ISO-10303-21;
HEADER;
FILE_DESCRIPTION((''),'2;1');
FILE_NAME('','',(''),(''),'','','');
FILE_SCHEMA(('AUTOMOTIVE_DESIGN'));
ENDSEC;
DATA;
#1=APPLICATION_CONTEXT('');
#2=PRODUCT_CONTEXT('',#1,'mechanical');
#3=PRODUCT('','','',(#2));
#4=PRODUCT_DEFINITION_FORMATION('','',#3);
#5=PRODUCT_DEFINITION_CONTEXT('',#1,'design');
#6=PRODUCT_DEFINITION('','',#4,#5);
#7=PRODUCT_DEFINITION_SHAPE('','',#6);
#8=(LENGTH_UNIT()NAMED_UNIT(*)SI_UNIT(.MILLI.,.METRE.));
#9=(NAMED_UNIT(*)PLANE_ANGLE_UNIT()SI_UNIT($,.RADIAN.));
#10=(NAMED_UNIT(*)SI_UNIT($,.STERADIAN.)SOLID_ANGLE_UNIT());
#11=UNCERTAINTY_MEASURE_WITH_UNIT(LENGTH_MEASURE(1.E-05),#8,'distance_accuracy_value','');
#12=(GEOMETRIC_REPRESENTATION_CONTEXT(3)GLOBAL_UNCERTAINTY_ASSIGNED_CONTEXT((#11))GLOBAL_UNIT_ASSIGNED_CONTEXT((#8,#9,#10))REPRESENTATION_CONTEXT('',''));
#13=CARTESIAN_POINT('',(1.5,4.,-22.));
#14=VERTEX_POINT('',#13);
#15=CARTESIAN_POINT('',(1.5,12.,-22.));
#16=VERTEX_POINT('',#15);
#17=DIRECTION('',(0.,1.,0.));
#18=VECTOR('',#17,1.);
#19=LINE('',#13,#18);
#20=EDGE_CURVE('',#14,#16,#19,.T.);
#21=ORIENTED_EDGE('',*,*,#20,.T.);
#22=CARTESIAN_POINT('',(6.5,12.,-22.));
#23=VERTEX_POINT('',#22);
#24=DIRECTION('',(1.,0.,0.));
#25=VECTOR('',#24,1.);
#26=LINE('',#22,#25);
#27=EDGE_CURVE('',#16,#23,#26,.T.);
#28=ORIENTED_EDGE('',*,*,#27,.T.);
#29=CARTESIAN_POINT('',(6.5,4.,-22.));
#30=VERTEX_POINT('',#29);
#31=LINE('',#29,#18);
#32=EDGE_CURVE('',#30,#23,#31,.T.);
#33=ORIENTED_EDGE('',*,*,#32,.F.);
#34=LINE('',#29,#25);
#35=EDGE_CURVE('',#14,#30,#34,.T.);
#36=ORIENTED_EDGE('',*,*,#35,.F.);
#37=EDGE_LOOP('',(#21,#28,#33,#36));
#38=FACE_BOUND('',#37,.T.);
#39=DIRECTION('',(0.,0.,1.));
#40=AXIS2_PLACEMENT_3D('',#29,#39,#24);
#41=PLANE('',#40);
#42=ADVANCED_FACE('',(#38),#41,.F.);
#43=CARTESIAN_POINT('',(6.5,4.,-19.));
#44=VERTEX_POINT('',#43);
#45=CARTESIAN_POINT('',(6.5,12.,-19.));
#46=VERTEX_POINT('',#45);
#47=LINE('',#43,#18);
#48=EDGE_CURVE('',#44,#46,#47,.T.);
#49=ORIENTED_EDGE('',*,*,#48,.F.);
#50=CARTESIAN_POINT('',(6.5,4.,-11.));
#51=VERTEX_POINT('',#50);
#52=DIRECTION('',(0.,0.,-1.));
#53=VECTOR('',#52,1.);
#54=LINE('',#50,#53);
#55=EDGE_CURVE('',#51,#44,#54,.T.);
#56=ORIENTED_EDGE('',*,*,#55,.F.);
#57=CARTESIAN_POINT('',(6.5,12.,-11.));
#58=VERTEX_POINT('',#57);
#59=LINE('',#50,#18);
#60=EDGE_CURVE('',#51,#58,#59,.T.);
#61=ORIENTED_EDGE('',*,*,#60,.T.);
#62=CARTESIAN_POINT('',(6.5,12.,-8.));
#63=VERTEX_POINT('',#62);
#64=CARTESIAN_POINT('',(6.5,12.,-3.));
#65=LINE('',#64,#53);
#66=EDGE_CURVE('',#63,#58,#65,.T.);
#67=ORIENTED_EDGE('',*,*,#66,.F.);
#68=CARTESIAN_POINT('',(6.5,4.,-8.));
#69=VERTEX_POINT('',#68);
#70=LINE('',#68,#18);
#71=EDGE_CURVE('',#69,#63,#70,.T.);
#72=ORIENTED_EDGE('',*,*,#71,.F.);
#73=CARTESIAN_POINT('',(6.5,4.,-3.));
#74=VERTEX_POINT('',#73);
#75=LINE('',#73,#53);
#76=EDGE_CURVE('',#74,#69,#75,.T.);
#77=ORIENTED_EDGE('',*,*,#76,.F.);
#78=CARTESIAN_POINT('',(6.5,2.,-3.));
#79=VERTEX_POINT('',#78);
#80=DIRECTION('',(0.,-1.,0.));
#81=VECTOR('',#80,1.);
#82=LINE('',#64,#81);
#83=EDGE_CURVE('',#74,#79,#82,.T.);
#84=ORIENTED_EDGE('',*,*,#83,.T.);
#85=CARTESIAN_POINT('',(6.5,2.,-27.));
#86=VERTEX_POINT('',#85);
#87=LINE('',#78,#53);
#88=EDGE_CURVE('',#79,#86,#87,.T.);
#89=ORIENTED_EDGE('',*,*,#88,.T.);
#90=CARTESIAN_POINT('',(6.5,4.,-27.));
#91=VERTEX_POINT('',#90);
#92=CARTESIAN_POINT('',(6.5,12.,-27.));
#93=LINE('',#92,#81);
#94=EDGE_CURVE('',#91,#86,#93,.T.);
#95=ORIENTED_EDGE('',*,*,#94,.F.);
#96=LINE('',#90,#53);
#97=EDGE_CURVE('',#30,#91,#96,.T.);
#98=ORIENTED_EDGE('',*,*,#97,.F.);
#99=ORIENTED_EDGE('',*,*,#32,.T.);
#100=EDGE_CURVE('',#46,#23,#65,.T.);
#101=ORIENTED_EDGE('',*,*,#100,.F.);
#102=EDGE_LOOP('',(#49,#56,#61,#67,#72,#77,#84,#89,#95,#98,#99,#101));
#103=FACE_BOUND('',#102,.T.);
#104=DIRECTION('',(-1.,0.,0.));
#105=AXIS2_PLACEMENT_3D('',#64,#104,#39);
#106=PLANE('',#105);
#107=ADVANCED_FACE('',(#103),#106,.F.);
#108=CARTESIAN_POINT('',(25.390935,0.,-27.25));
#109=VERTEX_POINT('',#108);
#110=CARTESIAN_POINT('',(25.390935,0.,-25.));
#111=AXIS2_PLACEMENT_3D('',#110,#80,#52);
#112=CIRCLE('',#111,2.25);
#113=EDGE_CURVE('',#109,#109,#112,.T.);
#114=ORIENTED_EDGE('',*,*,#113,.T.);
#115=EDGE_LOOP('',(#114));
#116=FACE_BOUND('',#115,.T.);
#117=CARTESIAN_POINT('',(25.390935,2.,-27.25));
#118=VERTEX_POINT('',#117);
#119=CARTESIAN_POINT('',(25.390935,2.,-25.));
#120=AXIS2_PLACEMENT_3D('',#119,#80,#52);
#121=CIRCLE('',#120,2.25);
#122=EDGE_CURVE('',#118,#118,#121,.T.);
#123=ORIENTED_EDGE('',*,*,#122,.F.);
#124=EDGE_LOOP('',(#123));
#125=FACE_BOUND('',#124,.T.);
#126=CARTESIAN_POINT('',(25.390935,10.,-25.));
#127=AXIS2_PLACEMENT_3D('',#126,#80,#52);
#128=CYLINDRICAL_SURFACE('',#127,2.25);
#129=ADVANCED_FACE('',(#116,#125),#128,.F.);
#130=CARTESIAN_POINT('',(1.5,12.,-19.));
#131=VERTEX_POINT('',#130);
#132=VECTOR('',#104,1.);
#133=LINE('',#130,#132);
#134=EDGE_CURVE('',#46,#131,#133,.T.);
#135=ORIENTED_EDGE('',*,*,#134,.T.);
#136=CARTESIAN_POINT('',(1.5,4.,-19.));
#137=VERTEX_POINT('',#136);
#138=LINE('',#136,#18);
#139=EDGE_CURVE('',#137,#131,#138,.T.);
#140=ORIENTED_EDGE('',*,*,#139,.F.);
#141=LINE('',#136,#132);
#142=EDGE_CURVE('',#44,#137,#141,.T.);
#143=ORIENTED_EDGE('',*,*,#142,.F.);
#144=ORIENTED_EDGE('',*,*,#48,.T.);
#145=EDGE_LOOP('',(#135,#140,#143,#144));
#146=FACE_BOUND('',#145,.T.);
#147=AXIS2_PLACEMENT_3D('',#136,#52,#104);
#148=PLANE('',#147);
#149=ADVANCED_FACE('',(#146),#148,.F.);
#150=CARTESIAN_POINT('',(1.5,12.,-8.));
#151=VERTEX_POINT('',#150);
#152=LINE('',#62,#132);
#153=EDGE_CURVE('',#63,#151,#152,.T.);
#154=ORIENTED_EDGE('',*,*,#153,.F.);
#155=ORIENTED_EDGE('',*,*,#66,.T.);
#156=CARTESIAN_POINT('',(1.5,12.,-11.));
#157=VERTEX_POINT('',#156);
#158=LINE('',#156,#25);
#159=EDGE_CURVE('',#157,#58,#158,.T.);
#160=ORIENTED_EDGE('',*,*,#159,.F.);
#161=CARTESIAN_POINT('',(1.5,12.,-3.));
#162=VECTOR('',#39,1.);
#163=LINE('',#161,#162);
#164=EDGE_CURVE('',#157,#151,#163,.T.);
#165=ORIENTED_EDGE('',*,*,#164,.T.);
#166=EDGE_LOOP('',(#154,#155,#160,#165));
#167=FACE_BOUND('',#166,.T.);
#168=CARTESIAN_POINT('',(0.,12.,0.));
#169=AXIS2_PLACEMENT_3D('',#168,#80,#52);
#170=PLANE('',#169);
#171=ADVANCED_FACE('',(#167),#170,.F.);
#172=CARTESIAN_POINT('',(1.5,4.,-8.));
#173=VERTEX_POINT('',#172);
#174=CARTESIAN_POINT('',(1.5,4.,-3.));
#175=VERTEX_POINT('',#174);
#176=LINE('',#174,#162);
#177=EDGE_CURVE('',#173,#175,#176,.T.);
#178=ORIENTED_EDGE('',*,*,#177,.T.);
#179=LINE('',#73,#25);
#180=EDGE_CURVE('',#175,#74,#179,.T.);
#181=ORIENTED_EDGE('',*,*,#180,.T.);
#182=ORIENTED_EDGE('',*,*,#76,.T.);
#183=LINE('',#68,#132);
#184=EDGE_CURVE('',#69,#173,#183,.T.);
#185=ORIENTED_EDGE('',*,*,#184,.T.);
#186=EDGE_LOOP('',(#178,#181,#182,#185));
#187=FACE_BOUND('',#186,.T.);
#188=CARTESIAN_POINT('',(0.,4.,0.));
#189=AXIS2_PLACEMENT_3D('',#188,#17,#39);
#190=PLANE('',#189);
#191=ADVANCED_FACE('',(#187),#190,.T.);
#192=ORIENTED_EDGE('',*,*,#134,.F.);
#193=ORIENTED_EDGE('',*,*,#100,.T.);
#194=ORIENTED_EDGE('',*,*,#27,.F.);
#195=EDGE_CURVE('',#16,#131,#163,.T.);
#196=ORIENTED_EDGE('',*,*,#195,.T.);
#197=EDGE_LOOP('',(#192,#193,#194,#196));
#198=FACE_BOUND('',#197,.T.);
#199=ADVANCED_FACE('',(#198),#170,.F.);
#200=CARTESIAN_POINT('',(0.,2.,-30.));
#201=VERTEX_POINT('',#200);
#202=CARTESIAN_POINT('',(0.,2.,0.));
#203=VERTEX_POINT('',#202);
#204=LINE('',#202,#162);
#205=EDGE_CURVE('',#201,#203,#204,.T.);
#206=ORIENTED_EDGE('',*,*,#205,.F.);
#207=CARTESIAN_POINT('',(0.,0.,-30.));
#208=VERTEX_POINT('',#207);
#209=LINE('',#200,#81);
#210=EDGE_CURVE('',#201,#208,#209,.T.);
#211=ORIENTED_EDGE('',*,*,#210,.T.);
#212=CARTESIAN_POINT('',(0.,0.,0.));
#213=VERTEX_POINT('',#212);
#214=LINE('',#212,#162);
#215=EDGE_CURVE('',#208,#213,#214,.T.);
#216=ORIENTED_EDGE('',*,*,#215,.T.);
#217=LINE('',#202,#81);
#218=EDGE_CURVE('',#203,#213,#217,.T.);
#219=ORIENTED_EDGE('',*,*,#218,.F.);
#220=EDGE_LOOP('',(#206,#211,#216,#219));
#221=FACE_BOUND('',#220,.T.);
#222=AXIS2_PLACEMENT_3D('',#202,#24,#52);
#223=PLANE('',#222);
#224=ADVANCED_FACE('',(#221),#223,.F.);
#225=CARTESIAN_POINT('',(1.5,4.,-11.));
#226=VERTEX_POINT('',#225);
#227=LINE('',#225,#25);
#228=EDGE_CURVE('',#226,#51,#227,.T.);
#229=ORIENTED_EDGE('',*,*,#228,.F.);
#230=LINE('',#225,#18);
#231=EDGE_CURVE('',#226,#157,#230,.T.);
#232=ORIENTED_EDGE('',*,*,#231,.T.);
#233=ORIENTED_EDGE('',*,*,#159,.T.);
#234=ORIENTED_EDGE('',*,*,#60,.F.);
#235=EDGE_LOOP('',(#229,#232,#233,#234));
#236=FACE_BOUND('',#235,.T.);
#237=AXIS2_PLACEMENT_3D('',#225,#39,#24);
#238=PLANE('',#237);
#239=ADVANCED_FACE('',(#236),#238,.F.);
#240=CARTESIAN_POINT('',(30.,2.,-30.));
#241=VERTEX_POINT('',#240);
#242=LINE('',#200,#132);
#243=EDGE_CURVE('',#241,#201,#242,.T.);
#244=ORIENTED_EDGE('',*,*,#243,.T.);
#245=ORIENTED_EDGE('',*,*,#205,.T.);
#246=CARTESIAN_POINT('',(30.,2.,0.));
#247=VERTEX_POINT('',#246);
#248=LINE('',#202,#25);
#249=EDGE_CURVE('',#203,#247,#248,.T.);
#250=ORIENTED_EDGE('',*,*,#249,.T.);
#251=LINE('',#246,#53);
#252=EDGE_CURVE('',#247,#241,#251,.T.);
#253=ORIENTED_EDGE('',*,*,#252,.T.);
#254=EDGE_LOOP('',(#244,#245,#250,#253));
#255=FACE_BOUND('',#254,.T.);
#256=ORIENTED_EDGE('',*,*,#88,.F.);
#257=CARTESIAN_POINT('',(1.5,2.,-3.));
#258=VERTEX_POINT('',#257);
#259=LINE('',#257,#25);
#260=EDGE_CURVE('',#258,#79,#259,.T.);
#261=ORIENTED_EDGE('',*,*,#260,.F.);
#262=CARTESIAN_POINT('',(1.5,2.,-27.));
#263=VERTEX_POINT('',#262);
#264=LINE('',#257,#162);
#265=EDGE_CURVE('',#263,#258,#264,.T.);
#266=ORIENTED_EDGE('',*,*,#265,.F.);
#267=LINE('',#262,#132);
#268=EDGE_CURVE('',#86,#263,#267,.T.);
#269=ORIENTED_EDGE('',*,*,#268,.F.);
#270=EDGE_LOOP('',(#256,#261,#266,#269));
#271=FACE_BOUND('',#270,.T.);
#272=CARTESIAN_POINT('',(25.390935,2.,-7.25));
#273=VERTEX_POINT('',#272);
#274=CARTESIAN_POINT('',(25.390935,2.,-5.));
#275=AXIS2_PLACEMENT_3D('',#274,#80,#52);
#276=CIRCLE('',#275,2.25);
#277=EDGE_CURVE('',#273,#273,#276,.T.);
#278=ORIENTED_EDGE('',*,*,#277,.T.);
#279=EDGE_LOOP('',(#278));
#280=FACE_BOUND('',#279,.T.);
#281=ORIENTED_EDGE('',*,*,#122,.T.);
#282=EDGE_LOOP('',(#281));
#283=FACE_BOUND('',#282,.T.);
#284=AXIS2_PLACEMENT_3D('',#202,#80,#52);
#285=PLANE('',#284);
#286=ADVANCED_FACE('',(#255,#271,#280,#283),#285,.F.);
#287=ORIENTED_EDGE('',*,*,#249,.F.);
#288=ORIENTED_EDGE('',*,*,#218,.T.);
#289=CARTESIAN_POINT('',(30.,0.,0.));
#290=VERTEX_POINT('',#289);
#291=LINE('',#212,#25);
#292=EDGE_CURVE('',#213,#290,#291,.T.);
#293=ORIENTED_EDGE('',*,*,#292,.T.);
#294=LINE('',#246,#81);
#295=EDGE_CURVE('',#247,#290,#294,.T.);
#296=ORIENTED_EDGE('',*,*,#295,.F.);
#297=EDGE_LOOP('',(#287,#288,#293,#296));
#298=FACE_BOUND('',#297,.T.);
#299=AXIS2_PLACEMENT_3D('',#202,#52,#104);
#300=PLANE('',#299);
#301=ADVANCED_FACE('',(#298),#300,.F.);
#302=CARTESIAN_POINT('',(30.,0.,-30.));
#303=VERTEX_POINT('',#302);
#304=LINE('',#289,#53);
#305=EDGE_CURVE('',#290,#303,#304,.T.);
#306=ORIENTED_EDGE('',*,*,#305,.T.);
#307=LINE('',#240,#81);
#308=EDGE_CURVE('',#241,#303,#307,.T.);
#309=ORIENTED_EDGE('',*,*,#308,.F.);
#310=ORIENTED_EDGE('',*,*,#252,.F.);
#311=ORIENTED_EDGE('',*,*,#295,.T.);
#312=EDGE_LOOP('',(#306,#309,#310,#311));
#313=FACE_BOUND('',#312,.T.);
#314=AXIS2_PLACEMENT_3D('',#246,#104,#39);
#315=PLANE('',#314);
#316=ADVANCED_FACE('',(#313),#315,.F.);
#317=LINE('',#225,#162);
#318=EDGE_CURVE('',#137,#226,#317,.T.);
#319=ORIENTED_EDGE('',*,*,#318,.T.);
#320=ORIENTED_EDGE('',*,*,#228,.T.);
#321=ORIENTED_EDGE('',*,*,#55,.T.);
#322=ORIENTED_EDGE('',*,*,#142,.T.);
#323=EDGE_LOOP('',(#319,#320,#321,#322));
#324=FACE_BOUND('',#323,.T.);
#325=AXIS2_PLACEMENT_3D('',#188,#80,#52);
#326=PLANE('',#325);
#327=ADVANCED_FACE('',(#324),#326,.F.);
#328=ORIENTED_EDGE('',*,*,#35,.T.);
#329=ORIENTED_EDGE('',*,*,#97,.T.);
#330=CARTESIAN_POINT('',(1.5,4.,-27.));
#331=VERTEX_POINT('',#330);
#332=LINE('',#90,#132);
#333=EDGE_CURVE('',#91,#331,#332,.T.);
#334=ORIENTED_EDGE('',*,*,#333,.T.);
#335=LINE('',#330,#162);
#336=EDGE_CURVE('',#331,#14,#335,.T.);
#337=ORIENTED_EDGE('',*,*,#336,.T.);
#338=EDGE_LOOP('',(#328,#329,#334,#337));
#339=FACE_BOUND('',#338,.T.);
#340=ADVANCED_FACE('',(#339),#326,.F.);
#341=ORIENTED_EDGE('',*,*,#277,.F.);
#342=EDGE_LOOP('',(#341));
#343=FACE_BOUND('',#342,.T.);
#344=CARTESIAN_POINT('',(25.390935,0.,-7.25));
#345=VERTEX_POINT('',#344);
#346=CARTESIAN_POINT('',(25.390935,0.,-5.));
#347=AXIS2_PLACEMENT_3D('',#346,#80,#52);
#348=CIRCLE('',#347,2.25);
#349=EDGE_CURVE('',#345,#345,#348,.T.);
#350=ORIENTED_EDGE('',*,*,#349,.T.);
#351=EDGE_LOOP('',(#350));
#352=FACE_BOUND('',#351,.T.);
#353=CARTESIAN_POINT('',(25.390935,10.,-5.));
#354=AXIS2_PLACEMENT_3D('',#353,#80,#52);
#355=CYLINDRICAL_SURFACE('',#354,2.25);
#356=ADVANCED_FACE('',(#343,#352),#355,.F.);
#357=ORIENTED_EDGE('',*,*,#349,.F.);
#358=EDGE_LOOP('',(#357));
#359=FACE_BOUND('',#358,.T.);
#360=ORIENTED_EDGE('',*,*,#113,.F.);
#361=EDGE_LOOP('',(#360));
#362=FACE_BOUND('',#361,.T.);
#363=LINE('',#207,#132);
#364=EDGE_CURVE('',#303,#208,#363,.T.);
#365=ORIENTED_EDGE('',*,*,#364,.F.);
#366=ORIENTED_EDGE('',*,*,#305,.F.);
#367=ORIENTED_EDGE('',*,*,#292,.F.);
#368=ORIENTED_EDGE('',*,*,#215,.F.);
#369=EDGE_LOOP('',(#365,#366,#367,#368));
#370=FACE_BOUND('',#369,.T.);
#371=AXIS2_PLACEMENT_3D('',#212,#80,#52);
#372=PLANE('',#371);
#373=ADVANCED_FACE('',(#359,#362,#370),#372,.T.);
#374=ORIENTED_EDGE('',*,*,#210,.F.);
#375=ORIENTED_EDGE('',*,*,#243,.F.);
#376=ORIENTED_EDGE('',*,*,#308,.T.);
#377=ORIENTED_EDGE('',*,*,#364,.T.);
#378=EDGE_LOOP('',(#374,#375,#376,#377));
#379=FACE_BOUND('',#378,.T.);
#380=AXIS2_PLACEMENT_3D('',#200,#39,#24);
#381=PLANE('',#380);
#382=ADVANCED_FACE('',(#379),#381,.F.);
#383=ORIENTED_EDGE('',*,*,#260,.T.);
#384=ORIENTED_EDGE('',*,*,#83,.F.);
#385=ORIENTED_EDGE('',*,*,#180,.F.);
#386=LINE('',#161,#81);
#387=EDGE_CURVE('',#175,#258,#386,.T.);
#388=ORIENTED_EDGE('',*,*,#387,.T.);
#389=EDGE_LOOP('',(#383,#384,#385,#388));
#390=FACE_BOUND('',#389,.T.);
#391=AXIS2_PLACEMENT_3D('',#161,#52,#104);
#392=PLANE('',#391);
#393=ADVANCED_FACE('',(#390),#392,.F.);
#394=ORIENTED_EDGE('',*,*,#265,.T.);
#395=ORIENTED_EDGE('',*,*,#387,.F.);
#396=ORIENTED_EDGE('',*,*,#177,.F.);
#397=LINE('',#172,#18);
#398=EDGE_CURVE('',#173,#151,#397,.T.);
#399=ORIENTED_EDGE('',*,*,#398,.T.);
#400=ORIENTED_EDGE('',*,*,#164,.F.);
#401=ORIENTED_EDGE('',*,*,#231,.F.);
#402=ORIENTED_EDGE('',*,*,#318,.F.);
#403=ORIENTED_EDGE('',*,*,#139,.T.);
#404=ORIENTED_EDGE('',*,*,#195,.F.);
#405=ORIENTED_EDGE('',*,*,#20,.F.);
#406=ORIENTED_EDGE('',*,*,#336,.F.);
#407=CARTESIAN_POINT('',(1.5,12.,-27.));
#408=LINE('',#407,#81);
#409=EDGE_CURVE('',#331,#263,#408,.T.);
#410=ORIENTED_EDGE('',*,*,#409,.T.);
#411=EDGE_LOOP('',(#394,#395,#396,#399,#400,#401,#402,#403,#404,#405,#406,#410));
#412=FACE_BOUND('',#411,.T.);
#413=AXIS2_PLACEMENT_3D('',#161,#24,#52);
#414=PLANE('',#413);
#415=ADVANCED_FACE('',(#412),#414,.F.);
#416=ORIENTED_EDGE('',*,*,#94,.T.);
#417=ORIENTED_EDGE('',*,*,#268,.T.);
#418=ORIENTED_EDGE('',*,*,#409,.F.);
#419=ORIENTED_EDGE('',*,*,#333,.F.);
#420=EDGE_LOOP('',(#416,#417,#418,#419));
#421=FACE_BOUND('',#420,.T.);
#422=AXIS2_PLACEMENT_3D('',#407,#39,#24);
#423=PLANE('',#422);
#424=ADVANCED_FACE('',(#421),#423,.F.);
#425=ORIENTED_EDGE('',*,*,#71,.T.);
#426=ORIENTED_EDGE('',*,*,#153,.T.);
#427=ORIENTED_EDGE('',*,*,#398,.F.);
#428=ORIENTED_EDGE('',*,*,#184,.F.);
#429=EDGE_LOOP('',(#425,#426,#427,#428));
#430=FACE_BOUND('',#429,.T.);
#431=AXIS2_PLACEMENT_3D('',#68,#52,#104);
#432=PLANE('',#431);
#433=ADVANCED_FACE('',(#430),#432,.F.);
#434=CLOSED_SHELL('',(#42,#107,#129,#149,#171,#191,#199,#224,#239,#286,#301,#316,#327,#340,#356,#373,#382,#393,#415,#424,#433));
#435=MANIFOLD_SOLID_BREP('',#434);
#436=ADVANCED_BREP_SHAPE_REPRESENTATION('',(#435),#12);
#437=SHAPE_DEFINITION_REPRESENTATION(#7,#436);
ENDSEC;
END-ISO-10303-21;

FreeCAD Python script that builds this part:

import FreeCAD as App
import Part
import Sketcher

V = App.Vector
Q = App.Units.Quantity

doc = App.newDocument("Part")
body = doc.addObject("PartDesign::Body", "Body")

# Sketch on XZ plane
sketch1 = doc.addObject("Sketcher::SketchObject", "Sketch")
body.addObject(sketch1)
sketch1.AttachmentSupport = (doc.XZ_Plane, [""])
sketch1.MapMode = "FlatFace"
sketch1.addGeometry([
    Part.LineSegment(V(0, -30, 0), V(0, 0, 0)),
    Part.LineSegment(V(0, 0, 0), V(30, 0, 0)),
    Part.LineSegment(V(30, 0, 0), V(30, -30, 0)),
    Part.LineSegment(V(30, -30, 0), V(0, -30, 0)),
], False)
sketch1.addConstraint([
    Sketcher.Constraint("Coincident", 0, 2, 1, 1),
    Sketcher.Constraint("Coincident", 1, 2, 2, 1),
    Sketcher.Constraint("Coincident", 2, 2, 3, 1),
    Sketcher.Constraint("Coincident", 3, 2, 0, 1),
    Sketcher.Constraint("Vertical", 0),
    Sketcher.Constraint("Horizontal", 1),
    Sketcher.Constraint("Vertical", 2),
    Sketcher.Constraint("Horizontal", 3),
    Sketcher.Constraint("Coincident", 0, 2, -1, 1),
    Sketcher.Constraint("Equal", 3, 0),
    Sketcher.Constraint("DistanceX", 1, 1, 1, 2, Q("30 mm")),
])
pad1 = doc.addObject("PartDesign::Pad", "Pad")
body.addObject(pad1)
pad1.Profile = sketch1
pad1.Length = 2
pad1.Reversed = True

# Sketch on XZ plane
sketch2 = doc.addObject("Sketcher::SketchObject", "Sketch001")
body.addObject(sketch2)
sketch2.AttachmentSupport = (doc.XZ_Plane, [""])
sketch2.MapMode = "FlatFace"
sketch2.AttachmentOffset = App.Placement(V(0, 0, -2), App.Rotation())
sketch2.addGeometry([
    Part.LineSegment(V(1.5, -27, 0), V(1.5, -3, 0)),
    Part.LineSegment(V(1.5, -3, 0), V(6.5, -3, 0)),
    Part.LineSegment(V(6.5, -3, 0), V(6.5, -27, 0)),
    Part.LineSegment(V(6.5, -27, 0), V(1.5, -27, 0)),
], False)
sketch2.addConstraint([
    Sketcher.Constraint("Coincident", 0, 2, 1, 1),
    Sketcher.Constraint("Coincident", 1, 2, 2, 1),
    Sketcher.Constraint("Coincident", 2, 2, 3, 1),
    Sketcher.Constraint("Coincident", 3, 2, 0, 1),
    Sketcher.Constraint("Vertical", 0),
    Sketcher.Constraint("Horizontal", 1),
    Sketcher.Constraint("Vertical", 2),
    Sketcher.Constraint("Horizontal", 3),
    Sketcher.Constraint("DistanceX", 1, 1, 1, 2, Q("5 mm")),
    Sketcher.Constraint("DistanceY", 0, 1, 0, 2, Q("24 mm")),
    Sketcher.Constraint("DistanceY", 0, 2, -1, 1, Q("3 mm")),
    Sketcher.Constraint("DistanceX", -1, 1, 0, 2, Q("1.5 mm")),
])
pad2 = doc.addObject("PartDesign::Pad", "Pad001")
body.addObject(pad2)
pad2.Profile = sketch2
pad2.Length = 10
pad2.Reversed = True

# Sketch on XZ plane
sketch3 = doc.addObject("Sketcher::SketchObject", "Sketch002")
body.addObject(sketch3)
sketch3.AttachmentSupport = (doc.XZ_Plane, [""])
sketch3.MapMode = "FlatFace"
sketch3.AttachmentOffset = App.Placement(V(0, 0, -12), App.Rotation())
sketch3.addGeometry([
    Part.LineSegment(V(1.5, -27, 0), V(1.5, -22, 0)),  # 0
    Part.LineSegment(V(1.5, -22, 0), V(6.5, -22, 0)),  # 1
    Part.LineSegment(V(6.5, -22, 0), V(6.5, -27, 0)),  # 2
    Part.LineSegment(V(6.5, -27, 0), V(1.5, -27, 0)),  # 3
    Part.LineSegment(V(1.5, -8, 0), V(1.5, -3, 0)),  # 4
    Part.LineSegment(V(1.5, -3, 0), V(6.5, -3, 0)),  # 5
    Part.LineSegment(V(6.5, -3, 0), V(6.5, -8, 0)),  # 6
    Part.LineSegment(V(6.5, -8, 0), V(1.5, -8, 0)),  # 7
    Part.LineSegment(V(1.5, -19, 0), V(1.5, -11, 0)),  # 8
    Part.LineSegment(V(1.5, -11, 0), V(6.5, -11, 0)),  # 9
    Part.LineSegment(V(6.5, -11, 0), V(6.5, -19, 0)),  # 10
    Part.LineSegment(V(6.5, -19, 0), V(1.5, -19, 0)),  # 11
], False)
sketch3.addConstraint([
    Sketcher.Constraint("Coincident", 0, 2, 1, 1),
    Sketcher.Constraint("Coincident", 1, 2, 2, 1),
    Sketcher.Constraint("Coincident", 2, 2, 3, 1),
    Sketcher.Constraint("Coincident", 3, 2, 0, 1),
    Sketcher.Constraint("Coincident", 4, 2, 5, 1),
    Sketcher.Constraint("Coincident", 5, 2, 6, 1),
    Sketcher.Constraint("Coincident", 6, 2, 7, 1),
    Sketcher.Constraint("Coincident", 7, 2, 4, 1),
    Sketcher.Constraint("Coincident", 8, 2, 9, 1),
    Sketcher.Constraint("Coincident", 9, 2, 10, 1),
    Sketcher.Constraint("Coincident", 10, 2, 11, 1),
    Sketcher.Constraint("Coincident", 11, 2, 8, 1),
    Sketcher.Constraint("Vertical", 0),
    Sketcher.Constraint("Horizontal", 1),
    Sketcher.Constraint("Vertical", 2),
    Sketcher.Constraint("Horizontal", 3),
    Sketcher.Constraint("Vertical", 4),
    Sketcher.Constraint("Horizontal", 5),
    Sketcher.Constraint("Vertical", 6),
    Sketcher.Constraint("Horizontal", 7),
    Sketcher.Constraint("Vertical", 8),
    Sketcher.Constraint("Horizontal", 9),
    Sketcher.Constraint("Vertical", 10),
    Sketcher.Constraint("Horizontal", 11),
    Sketcher.Constraint("Vertical", 3, 2, 4, 2),
    Sketcher.Constraint("Vertical", 2, 2, 5, 2),
    Sketcher.Constraint("Vertical", 7, 2, 8, 2),
    Sketcher.Constraint("Vertical", 6, 2, 9, 2),
    Sketcher.Constraint("Equal", 11, 0),
    Sketcher.Constraint("Equal", 2, 4),
    Sketcher.Constraint("DistanceX", 1, 1, 1, 2, Q("5 mm")),
    Sketcher.Constraint("DistanceY", 8, 1, 8, 2, Q("8 mm")),
    Sketcher.Constraint("DistanceY", 0, 2, -1, 1, Q("22 mm")),
    Sketcher.Constraint("DistanceY", 4, 2, -1, 1, Q("3 mm")),
    Sketcher.Constraint("DistanceY", 8, 2, -1, 1, Q("11 mm")),
    Sketcher.Constraint("DistanceX", -1, 1, 0, 2, Q("1.5 mm")),
])
pocket1 = doc.addObject("PartDesign::Pocket", "Pocket")
body.addObject(pocket1)
pocket1.Profile = sketch3
pocket1.Length = 8
pocket1.Reversed = True

# Sketch on XZ plane
sketch4 = doc.addObject("Sketcher::SketchObject", "Sketch003")
body.addObject(sketch4)
sketch4.AttachmentSupport = (doc.XZ_Plane, [""])
sketch4.MapMode = "FlatFace"
sketch4.addGeometry([
    Part.Circle(V(25.390935, -5, 0), V(0, 0, 1), 2.25),
    Part.Circle(V(25.390935, -25, 0), V(0, 0, 1), 2.25),
], False)
sketch4.addConstraint([
    Sketcher.Constraint("Equal", 0, 1),
    Sketcher.Constraint("Vertical", 0, 3, 1, 3),
    Sketcher.Constraint("Diameter", 0, Q("4.5 mm")),
    Sketcher.Constraint("DistanceY", 0, 3, -1, 1, Q("5 mm")),
    Sketcher.Constraint("DistanceY", 1, 3, -1, 1, Q("25 mm")),
    Sketcher.Constraint("DistanceX", -1, 1, 0, 3, Q("25.390935 mm")),
])
pocket2 = doc.addObject("PartDesign::Pocket", "Pocket001")
body.addObject(pocket2)
pocket2.Profile = sketch4
pocket2.Length = 10

doc.recompute()
